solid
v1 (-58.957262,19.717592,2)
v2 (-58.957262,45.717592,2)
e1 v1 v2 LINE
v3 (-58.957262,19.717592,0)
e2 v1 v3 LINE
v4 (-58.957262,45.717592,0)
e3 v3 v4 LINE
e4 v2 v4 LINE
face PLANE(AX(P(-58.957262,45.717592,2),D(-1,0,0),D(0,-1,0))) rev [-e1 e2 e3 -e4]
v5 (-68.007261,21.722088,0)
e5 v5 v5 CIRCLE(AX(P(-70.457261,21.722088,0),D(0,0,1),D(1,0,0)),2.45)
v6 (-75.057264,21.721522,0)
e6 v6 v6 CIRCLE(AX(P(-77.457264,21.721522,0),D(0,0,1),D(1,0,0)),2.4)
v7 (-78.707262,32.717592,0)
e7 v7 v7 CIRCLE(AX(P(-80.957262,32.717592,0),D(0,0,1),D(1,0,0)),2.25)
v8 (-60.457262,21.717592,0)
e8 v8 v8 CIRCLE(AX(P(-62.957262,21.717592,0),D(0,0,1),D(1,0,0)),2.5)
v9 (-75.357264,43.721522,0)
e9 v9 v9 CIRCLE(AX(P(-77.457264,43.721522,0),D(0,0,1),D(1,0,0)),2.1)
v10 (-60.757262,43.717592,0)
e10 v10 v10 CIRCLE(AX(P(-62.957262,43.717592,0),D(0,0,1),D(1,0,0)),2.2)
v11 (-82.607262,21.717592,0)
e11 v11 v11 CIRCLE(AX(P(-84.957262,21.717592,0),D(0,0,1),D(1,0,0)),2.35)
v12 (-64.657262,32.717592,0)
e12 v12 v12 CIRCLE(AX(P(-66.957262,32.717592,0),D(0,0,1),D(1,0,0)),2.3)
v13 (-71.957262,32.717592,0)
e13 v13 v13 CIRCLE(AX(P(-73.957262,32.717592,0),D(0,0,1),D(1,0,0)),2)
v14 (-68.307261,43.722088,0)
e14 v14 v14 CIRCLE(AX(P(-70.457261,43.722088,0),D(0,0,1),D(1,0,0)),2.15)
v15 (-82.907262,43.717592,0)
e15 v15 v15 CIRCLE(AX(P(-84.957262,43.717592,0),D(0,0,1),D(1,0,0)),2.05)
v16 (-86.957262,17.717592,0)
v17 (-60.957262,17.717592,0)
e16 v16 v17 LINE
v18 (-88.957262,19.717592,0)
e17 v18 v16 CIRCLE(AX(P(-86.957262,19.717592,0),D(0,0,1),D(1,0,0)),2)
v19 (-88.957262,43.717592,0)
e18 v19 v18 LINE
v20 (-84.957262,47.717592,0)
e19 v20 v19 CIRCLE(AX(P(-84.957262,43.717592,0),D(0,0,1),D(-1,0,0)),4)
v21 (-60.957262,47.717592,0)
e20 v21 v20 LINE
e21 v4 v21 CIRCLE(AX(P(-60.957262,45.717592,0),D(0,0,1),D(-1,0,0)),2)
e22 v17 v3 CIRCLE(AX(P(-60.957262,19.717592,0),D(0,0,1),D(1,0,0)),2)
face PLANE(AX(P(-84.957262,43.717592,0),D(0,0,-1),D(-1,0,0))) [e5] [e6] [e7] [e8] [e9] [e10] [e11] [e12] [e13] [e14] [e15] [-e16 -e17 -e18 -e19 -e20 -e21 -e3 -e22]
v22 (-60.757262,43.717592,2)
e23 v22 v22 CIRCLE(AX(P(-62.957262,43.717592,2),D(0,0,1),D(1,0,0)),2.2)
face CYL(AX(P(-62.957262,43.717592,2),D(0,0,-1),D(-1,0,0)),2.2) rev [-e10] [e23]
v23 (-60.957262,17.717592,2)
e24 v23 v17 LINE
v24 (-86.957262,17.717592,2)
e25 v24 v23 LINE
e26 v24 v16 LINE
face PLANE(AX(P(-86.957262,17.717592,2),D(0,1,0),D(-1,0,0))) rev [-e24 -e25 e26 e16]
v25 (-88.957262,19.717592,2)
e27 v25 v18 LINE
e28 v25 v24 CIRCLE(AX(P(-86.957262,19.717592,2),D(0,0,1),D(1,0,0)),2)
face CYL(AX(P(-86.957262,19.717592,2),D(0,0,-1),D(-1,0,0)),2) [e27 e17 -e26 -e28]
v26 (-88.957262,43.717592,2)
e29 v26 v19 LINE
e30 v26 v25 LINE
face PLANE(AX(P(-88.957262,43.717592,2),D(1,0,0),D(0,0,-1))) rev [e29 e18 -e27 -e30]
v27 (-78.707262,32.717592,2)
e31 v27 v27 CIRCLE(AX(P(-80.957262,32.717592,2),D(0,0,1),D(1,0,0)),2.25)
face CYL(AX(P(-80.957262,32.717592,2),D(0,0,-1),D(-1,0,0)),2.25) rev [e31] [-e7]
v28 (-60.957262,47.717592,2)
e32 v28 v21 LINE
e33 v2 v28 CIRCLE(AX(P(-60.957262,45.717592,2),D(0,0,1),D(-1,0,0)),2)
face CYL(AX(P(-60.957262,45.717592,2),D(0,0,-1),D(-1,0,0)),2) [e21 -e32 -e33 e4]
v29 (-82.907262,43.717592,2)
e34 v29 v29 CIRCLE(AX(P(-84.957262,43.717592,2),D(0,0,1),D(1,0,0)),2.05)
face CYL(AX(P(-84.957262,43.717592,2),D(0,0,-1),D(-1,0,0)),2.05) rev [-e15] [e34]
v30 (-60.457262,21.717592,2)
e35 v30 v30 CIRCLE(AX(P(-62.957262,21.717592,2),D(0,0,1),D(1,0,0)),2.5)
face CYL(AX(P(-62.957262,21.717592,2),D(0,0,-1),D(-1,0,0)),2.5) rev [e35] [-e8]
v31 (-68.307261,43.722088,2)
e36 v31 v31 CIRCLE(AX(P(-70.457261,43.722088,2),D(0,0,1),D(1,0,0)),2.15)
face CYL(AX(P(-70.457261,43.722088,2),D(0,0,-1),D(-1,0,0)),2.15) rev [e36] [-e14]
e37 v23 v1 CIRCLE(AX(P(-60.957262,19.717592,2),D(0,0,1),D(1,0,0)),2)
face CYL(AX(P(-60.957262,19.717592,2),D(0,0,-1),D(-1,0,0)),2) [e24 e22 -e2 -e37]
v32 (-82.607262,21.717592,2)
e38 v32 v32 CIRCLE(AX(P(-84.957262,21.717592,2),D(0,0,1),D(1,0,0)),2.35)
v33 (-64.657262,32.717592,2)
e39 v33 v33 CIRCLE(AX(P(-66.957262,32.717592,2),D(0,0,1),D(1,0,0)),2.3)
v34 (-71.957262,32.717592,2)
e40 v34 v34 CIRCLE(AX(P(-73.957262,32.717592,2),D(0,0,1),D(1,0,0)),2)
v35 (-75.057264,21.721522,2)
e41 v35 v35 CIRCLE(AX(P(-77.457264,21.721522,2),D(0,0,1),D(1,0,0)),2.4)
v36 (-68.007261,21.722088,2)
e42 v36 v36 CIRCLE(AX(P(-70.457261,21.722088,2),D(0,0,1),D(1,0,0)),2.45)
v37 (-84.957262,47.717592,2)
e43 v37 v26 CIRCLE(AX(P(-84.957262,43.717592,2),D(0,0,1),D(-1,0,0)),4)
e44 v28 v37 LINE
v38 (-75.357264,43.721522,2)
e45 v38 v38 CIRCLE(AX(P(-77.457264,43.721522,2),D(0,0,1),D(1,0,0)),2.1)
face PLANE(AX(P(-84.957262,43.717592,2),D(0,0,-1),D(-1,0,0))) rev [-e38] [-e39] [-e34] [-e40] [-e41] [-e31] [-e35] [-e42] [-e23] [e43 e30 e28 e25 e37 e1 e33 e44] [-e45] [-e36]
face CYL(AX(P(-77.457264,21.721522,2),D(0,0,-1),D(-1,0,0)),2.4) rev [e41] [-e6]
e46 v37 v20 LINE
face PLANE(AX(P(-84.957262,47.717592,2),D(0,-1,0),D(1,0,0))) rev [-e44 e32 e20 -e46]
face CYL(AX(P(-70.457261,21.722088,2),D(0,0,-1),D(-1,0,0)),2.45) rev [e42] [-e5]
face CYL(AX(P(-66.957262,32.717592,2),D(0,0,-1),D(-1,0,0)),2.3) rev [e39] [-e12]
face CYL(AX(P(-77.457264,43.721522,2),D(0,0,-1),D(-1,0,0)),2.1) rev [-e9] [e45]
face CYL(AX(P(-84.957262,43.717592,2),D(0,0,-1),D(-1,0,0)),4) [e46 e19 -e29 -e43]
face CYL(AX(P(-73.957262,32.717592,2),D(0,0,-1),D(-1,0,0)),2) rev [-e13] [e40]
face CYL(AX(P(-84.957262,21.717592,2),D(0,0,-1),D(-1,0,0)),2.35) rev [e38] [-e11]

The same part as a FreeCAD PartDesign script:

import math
import FreeCAD as App
import Part
import Sketcher
from FreeCAD import Vector
Q = App.Units.Quantity

doc = App.newDocument("Part")
body = doc.addObject("PartDesign::Body", "Body")

sketch1 = body.newObject("Sketcher::SketchObject", "Sketch")
sketch1.AttachmentSupport = (doc.getObject("XY_Plane"), [""])
sketch1.MapMode = "FlatFace"
sketch1.addGeometry(Part.LineSegment(Vector(-61, 47.7, 0), Vector(-85, 47.7, 0)), False)
sketch1.addGeometry(Part.ArcOfCircle(Part.Circle(Vector(-85, 43.7, 0), Vector(0, 0, 1), 4), math.radians(90), math.radians(180)), False)
sketch1.addGeometry(Part.LineSegment(Vector(-89, 43.7, 0), Vector(-89, 19.7, 0)), False)
sketch1.addGeometry(Part.ArcOfCircle(Part.Circle(Vector(-87, 19.7, 0), Vector(0, 0, 1), 2), math.radians(-180), math.radians(-90)), False)
sketch1.addGeometry(Part.LineSegment(Vector(-87, 17.7, 0), Vector(-61, 17.7, 0)), False)
sketch1.addGeometry(Part.ArcOfCircle(Part.Circle(Vector(-61, 19.7, 0), Vector(0, 0, 1), 2), math.radians(-90), math.radians(0)), False)
sketch1.addGeometry(Part.LineSegment(Vector(-59, 19.7, 0), Vector(-59, 45.7, 0)), False)
sketch1.addGeometry(Part.ArcOfCircle(Part.Circle(Vector(-61, 45.7, 0), Vector(0, 0, 1), 2), math.radians(0), math.radians(90)), False)
sketch1.addGeometry(Part.Circle(Vector(-63, 21.7, 0), Vector(0, 0, 1), 2.5), False)
sketch1.addGeometry(Part.Circle(Vector(-70.5, 21.7, 0), Vector(0, 0, 1), 2.5), False)
sketch1.addGeometry(Part.Circle(Vector(-77.5, 21.7, 0), Vector(0, 0, 1), 2.4), False)
sketch1.addGeometry(Part.Circle(Vector(-85, 21.7, 0), Vector(0, 0, 1), 2.4), False)
sketch1.addGeometry(Part.Circle(Vector(-67, 32.7, 0), Vector(0, 0, 1), 2.3), False)
sketch1.addGeometry(Part.Circle(Vector(-63, 43.7, 0), Vector(0, 0, 1), 2.2), False)
sketch1.addGeometry(Part.Circle(Vector(-70.5, 43.7, 0), Vector(0, 0, 1), 2.1), False)
sketch1.addGeometry(Part.Circle(Vector(-74, 32.7, 0), Vector(0, 0, 1), 2), False)
sketch1.addGeometry(Part.Circle(Vector(-81, 32.7, 0), Vector(0, 0, 1), 2.2), False)
sketch1.addGeometry(Part.Circle(Vector(-77.5, 43.7, 0), Vector(0, 0, 1), 2.1), False)
sketch1.addGeometry(Part.Circle(Vector(-85, 43.7, 0), Vector(0, 0, 1), 2), False)
sketch1.addConstraint(Sketcher.Constraint("Tangent", 0, 2, 1, 1))
sketch1.addConstraint(Sketcher.Constraint("Tangent", 1, 2, 2, 1))
sketch1.addConstraint(Sketcher.Constraint("Tangent", 2, 2, 3, 1))
sketch1.addConstraint(Sketcher.Constraint("Tangent", 3, 2, 4, 1))
sketch1.addConstraint(Sketcher.Constraint("Tangent", 4, 2, 5, 1))
sketch1.addConstraint(Sketcher.Constraint("Tangent", 5, 2, 6, 1))
sketch1.addConstraint(Sketcher.Constraint("Tangent", 6, 2, 7, 1))
sketch1.addConstraint(Sketcher.Constraint("Tangent", 7, 2, 0, 1))
sketch1.addConstraint(Sketcher.Constraint("Horizontal", 0))
sketch1.addConstraint(Sketcher.Constraint("Vertical", 2))
sketch1.addConstraint(Sketcher.Constraint("Horizontal", 4))
sketch1.addConstraint(Sketcher.Constraint("Vertical", 6))
sketch1.addConstraint(Sketcher.Constraint("Coincident", 18, 3, 1, 3))
sketch1.addConstraint(Sketcher.Constraint("Equal", 3, 5))
sketch1.addConstraint(Sketcher.Constraint("Equal", 5, 7))
sketch1.addConstraint(Sketcher.Constraint("Equal", 7, 15))
sketch1.addConstraint(Sketcher.Constraint("Horizontal", 8, 3, 11, 3))
sketch1.addConstraint(Sketcher.Constraint("Horizontal", 1, 3, 13, 3))
sketch1.addConstraint(Sketcher.Constraint("Horizontal", 12, 3, 15, 3))
sketch1.addConstraint(Sketcher.Constraint("Horizontal", 15, 3, 16, 3))
sketch1.addConstraint(Sketcher.Constraint("Vertical", 1, 3, 11, 3))
sketch1.addConstraint(Sketcher.Constraint("Vertical", 8, 3, 13, 3))
sketch1.addConstraint(Sketcher.Constraint("Vertical", 9, 3, 14, 3))
sketch1.addConstraint(Sketcher.Constraint("Vertical", 10, 3, 17, 3))
sketch1.addConstraint(Sketcher.Constraint("Equal", 0, 2))
sketch1.addConstraint(Sketcher.Constraint("Diameter", 8, Q("5 mm")))
sketch1.addConstraint(Sketcher.Constraint("Diameter", 15, Q("4 mm")))
sketch1.addConstraint(Sketcher.Constraint("Radius", 1, Q("4 mm")))
sketch1.addConstraint(Sketcher.Constraint("Diameter", 9, Q("4.9 mm")))
sketch1.addConstraint(Sketcher.Constraint("Diameter", 10, Q("4.8 mm")))
sketch1.addConstraint(Sketcher.Constraint("Diameter", 11, Q("4.7 mm")))
sketch1.addConstraint(Sketcher.Constraint("Diameter", 12, Q("4.6 mm")))
sketch1.addConstraint(Sketcher.Constraint("Diameter", 13, Q("4.4 mm")))
sketch1.addConstraint(Sketcher.Constraint("Diameter", 14, Q("4.3 mm")))
sketch1.addConstraint(Sketcher.Constraint("Diameter", 16, Q("4.5 mm")))
sketch1.addConstraint(Sketcher.Constraint("Diameter", 17, Q("4.2 mm")))
sketch1.addConstraint(Sketcher.Constraint("Diameter", 18, Q("4.1 mm")))
sketch1.addConstraint(Sketcher.Constraint("DistanceX", 0, 2, 0, 1, Q("24 mm")))
sketch1.addConstraint(Sketcher.Constraint("DistanceX", 8, 3, 5, 3, Q("2 mm")))
sketch1.addConstraint(Sketcher.Constraint("DistanceY", 5, 3, 8, 3, Q("2 mm")))
sketch1.addConstraint(Sketcher.Constraint("DistanceX", 12, 3, 8, 3, Q("4 mm")))
sketch1.addConstraint(Sketcher.Constraint("DistanceY", 8, 3, 12, 3, Q("11 mm")))
sketch1.addConstraint(Sketcher.Constraint("DistanceY", 9, 3, 14, 3, Q("22 mm")))
sketch1.addConstraint(Sketcher.Constraint("DistanceX", 15, 3, 12, 3, Q("7 mm")))
sketch1.addConstraint(Sketcher.Constraint("DistanceX", 16, 3, 15, 3, Q("7 mm")))
sketch1.addConstraint(Sketcher.Constraint("DistanceX", 9, 3, 8, 3, Q("7.499999 mm")))
sketch1.addConstraint(Sketcher.Constraint("DistanceX", 3, 3, 10, 3, Q("9.499999 mm")))
sketch1.addConstraint(Sketcher.Constraint("DistanceX", 9, 3, -1, 1, Q("70.457261 mm")))
sketch1.addConstraint(Sketcher.Constraint("DistanceY", -1, 1, 9, 3, Q("21.722088 mm")))
sketch1.addConstraint(Sketcher.Constraint("DistanceY", -1, 1, 10, 3, Q("21.721522 mm")))
sketch1.addConstraint(Sketcher.Constraint("DistanceY", -1, 1, 17, 3, Q("43.721522 mm")))
sketch1.addConstraint(Sketcher.Constraint("DistanceY", 3, 3, 10, 3, Q("2.003929 mm")))
pad1 = body.newObject("PartDesign::Pad", "Pad")
pad1.Profile = sketch1
pad1.Length = 2

doc.recompute()
